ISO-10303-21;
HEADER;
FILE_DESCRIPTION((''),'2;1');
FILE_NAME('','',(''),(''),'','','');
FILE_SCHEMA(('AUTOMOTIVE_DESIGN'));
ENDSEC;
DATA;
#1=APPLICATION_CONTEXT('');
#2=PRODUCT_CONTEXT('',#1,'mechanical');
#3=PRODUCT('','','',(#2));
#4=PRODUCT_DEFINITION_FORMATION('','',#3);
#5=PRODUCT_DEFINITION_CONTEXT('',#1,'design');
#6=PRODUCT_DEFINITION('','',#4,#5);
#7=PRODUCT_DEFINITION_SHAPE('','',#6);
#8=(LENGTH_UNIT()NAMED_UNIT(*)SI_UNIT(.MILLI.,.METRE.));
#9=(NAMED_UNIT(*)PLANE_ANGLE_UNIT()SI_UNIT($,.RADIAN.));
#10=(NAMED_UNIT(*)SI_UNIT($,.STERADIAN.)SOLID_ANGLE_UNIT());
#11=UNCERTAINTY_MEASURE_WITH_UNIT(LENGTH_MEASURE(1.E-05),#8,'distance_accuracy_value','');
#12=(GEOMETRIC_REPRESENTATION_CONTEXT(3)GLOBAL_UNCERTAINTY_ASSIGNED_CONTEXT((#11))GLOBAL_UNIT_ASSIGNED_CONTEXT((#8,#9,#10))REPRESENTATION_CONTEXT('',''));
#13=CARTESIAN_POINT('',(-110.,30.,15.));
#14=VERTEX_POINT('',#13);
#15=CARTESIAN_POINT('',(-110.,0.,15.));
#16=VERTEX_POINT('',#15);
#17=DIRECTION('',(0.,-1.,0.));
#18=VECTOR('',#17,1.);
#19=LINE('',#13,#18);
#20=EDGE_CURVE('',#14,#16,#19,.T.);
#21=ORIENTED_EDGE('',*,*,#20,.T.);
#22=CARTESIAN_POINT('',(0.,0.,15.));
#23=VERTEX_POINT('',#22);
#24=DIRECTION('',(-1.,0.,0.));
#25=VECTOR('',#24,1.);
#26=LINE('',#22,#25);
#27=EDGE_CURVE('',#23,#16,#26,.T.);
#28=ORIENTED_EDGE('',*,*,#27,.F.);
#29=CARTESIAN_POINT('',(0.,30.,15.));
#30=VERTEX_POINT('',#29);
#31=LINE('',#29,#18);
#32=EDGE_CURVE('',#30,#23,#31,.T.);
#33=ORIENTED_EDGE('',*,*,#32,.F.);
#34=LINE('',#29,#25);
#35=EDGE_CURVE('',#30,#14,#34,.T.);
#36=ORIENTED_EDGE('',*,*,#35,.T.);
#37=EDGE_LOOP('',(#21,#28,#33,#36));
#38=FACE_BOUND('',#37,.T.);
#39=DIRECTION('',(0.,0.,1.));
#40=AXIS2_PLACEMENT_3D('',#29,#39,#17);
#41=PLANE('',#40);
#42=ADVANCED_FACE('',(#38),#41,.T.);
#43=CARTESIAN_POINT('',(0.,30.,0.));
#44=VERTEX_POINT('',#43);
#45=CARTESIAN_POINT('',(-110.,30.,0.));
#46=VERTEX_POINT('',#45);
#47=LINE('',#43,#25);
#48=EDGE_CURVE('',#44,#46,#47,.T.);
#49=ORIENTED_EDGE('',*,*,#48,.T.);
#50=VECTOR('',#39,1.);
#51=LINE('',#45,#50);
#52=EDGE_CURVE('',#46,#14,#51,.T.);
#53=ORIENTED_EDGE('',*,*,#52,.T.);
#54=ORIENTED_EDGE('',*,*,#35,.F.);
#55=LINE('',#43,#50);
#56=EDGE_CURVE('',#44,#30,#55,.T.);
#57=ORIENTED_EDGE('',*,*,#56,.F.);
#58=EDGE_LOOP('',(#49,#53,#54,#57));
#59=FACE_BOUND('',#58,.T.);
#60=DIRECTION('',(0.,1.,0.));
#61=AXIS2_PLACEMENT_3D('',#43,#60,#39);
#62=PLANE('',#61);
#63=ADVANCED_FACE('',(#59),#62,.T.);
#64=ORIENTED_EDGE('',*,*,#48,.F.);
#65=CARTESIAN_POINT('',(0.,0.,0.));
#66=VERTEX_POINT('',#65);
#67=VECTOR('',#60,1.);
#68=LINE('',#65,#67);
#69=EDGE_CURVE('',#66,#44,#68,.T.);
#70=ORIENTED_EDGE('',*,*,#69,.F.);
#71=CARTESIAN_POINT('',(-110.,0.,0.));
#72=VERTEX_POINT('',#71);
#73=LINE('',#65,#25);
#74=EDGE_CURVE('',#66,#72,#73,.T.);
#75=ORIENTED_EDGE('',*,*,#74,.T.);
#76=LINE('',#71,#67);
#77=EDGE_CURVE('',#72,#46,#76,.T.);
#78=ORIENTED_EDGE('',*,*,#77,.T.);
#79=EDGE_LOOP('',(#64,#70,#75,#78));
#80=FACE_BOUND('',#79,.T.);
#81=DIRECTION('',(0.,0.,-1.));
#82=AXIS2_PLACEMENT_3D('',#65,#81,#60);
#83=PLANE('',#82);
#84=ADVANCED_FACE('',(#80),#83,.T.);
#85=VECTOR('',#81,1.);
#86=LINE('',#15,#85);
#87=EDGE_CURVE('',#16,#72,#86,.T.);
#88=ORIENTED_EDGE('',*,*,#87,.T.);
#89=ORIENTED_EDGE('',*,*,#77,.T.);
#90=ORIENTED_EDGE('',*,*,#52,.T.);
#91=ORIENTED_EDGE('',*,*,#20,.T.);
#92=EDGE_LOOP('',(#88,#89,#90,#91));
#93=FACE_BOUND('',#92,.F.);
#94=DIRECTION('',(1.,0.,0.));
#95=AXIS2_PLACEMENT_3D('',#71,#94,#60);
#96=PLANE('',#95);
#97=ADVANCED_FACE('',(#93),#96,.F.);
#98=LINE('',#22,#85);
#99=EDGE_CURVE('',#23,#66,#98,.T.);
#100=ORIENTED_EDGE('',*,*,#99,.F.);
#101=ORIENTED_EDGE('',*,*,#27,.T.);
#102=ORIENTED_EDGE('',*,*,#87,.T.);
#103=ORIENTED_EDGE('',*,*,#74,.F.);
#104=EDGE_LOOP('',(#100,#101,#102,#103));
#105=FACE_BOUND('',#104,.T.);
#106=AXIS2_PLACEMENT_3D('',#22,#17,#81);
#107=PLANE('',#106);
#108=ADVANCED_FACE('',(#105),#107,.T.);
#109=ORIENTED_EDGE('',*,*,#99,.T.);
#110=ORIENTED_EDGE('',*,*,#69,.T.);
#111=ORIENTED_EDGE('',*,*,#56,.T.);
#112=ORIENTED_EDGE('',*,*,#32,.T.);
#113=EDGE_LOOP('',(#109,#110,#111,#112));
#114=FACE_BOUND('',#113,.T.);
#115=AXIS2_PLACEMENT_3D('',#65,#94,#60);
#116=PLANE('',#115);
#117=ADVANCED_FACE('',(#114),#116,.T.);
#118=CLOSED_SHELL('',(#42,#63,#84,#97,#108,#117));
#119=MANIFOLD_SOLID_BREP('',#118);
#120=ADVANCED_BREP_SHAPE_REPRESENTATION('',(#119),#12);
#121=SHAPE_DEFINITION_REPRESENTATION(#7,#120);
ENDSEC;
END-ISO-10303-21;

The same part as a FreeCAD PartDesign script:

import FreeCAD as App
import Part
import Sketcher

doc = App.newDocument("Part")
body = doc.addObject("PartDesign::Body", "Body")

sketch1 = body.newObject("Sketcher::SketchObject", "Sketch")
sketch1.AttachmentSupport = (doc.getObject("YZ_Plane"), [""])
sketch1.MapMode = "FlatFace"
sketch1.addGeometry([
    Part.LineSegment(App.Vector(0, 15, 0), App.Vector(0, 0, 0)),
    Part.LineSegment(App.Vector(0, 0, 0), App.Vector(30, 0, 0)),
    Part.LineSegment(App.Vector(30, 0, 0), App.Vector(30, 15, 0)),
    Part.LineSegment(App.Vector(30, 15, 0), App.Vector(0, 15, 0)),
], False)
sketch1.addConstraint([
    Sketcher.Constraint("Coincident", 0, 2, 1, 1),
    Sketcher.Constraint("Coincident", 1, 2, 2, 1),
    Sketcher.Constraint("Coincident", 2, 2, 3, 1),
    Sketcher.Constraint("Coincident", 3, 2, 0, 1),
    Sketcher.Constraint("Vertical", 0),
    Sketcher.Constraint("Horizontal", 1),
    Sketcher.Constraint("Vertical", 2),
    Sketcher.Constraint("Horizontal", 3),
    Sketcher.Constraint("Coincident", 0, 2, -1, 1),
    Sketcher.Constraint("DistanceX", 1, 1, 1, 2, 30.0),
    Sketcher.Constraint("DistanceY", 0, 2, 0, 1, 15.0),
])
pad1 = body.newObject("PartDesign::Pad", "Pad")
pad1.Profile = sketch1
pad1.Length = 110
pad1.Reversed = True

doc.recompute()
